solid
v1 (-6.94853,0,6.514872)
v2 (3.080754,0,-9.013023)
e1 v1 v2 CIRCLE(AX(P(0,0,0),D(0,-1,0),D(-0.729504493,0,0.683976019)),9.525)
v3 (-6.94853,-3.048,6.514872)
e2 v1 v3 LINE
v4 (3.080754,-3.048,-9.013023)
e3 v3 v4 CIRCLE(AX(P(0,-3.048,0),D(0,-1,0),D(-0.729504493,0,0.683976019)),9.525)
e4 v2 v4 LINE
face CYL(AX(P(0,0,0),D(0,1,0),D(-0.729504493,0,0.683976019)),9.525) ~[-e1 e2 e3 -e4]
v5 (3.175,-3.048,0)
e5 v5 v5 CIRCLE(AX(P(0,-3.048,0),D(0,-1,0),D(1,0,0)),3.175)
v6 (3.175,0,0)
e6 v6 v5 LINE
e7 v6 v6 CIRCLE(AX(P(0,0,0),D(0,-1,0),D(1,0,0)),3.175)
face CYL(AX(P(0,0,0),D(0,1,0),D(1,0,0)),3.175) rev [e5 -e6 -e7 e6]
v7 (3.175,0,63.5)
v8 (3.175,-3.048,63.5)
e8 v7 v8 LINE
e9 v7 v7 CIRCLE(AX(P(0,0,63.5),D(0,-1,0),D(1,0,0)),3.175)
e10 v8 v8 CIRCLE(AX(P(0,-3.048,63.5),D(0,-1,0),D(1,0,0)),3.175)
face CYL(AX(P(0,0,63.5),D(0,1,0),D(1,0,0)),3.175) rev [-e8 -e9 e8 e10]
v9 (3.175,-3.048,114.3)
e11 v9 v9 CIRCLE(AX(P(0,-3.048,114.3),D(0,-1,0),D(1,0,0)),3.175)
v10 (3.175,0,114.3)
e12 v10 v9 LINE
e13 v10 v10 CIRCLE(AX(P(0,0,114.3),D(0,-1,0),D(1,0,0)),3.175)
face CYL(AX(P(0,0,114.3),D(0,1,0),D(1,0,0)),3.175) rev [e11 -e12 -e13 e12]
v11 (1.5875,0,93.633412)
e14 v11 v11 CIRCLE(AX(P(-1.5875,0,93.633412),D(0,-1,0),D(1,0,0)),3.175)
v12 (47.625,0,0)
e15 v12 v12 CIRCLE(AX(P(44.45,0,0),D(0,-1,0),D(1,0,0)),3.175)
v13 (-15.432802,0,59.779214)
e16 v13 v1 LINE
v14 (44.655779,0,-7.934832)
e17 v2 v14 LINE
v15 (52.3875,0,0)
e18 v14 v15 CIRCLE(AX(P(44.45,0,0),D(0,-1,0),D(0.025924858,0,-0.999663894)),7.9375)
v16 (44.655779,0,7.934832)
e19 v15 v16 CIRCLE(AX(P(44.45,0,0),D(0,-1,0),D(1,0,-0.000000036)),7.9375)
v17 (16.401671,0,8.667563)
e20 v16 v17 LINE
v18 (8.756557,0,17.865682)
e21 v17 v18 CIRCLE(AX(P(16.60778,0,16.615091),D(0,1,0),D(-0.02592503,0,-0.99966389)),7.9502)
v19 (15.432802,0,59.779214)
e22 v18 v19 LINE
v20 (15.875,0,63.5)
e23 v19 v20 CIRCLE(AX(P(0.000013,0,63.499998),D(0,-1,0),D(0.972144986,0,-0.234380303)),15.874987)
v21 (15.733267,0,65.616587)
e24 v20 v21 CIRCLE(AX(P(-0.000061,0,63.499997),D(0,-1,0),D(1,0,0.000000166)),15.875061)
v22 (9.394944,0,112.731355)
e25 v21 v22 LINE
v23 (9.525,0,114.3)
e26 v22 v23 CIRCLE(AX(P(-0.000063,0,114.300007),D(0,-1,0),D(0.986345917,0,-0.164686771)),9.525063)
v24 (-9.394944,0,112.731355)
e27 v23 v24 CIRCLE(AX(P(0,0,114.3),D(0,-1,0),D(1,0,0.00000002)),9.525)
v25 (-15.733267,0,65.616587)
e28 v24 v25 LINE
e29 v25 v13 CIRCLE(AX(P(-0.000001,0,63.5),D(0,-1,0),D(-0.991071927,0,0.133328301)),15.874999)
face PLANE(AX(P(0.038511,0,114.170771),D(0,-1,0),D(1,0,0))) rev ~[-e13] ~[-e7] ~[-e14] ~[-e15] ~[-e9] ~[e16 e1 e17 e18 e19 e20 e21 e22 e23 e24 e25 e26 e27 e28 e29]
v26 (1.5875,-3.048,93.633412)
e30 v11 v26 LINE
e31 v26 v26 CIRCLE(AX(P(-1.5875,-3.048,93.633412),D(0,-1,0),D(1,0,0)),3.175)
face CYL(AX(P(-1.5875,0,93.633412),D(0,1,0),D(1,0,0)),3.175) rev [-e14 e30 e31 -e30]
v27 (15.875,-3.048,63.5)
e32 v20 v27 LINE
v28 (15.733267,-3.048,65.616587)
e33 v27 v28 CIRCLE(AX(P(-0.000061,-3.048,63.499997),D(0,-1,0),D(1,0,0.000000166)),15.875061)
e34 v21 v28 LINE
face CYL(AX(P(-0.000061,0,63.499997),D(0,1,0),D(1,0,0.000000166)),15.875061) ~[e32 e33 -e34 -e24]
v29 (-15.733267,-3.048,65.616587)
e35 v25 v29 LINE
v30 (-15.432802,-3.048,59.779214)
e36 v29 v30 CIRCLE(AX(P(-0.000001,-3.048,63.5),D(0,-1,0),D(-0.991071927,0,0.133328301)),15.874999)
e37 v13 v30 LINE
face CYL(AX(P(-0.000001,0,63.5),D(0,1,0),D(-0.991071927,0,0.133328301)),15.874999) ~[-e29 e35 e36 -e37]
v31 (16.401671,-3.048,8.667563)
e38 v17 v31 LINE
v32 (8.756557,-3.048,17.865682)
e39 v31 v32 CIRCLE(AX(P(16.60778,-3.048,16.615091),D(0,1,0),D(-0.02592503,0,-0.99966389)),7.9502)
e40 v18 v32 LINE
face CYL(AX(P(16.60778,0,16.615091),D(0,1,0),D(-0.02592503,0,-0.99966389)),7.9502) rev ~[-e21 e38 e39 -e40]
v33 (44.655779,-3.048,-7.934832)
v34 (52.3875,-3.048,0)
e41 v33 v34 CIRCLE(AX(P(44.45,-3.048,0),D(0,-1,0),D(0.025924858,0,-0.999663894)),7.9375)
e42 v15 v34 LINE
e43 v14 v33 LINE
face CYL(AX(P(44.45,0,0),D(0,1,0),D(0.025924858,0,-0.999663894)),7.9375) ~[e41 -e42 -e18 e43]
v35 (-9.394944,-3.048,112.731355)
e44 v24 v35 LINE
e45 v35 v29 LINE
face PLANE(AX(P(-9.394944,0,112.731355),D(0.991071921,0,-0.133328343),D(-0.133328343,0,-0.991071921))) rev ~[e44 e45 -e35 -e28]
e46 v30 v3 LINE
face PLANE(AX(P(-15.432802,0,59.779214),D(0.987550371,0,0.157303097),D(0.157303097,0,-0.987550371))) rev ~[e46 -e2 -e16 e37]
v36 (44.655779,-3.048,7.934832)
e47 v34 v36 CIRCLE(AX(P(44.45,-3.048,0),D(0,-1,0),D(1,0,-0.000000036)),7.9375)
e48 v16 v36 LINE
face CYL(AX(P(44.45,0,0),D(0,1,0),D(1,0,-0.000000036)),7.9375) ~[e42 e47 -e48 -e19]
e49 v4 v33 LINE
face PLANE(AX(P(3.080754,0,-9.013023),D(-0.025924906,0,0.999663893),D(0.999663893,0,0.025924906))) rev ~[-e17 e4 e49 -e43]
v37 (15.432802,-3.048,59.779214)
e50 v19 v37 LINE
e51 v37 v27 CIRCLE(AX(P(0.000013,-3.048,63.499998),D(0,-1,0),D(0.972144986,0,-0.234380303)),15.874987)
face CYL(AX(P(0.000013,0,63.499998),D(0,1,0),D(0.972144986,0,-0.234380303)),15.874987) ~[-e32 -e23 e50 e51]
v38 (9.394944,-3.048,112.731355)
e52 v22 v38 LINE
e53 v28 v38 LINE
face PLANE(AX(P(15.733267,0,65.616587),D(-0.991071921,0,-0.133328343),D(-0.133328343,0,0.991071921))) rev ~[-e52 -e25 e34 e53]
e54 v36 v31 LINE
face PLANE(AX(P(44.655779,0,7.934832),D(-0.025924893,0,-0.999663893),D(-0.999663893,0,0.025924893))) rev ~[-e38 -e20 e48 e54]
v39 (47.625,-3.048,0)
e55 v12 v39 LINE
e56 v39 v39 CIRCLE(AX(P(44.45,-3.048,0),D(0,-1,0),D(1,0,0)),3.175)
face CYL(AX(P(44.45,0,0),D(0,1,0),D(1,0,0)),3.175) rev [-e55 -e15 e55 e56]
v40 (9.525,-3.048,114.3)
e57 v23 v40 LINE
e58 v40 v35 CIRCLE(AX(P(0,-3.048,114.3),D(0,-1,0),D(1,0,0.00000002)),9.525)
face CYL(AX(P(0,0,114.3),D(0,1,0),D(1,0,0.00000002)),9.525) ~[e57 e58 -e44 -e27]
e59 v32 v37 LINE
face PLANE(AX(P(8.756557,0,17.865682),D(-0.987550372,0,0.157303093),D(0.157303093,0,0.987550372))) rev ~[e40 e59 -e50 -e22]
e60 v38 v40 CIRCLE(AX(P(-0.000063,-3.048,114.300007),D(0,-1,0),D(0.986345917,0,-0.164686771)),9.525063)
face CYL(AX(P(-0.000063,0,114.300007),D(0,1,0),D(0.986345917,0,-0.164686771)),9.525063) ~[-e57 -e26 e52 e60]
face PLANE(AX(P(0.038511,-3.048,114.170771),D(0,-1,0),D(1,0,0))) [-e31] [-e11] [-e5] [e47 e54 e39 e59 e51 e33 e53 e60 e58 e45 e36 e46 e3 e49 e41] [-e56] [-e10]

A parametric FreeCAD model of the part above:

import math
import FreeCAD as App
import Part
import Sketcher
from FreeCAD import Vector
Q = App.Units.Quantity

doc = App.newDocument("Part")
params = doc.addObject("Spreadsheet::Sheet", "Params")
for row, (alias, value) in enumerate([
    ("sketch1_diameter", "0.25 in"),
    ("sketch1_diameter2", "0.25 in"),
    ("sketch1_diameter3", "0.25 in"),
    ("sketch1_diameter4", "0.25 in"),
    ("sketch1_diameter5", "0.25 in"),
    ("pad1_length", "0.12 in"),
], start=1):
    params.set(f"A{row}", alias)
    params.set(f"B{row}", "=" + value)
    params.setAlias(f"B{row}", alias)

body = doc.addObject("PartDesign::Body", "Body")

# Sketch on XZ plane
sketch1 = body.newObject("Sketcher::SketchObject", "Sketch")
sketch1.AttachmentSupport = (doc.getObject("XZ_Plane"), [""])
sketch1.MapMode = "FlatFace"
sketch1.addGeometry(Part.ArcOfCircle(Part.Circle(Vector(-0.000063, 114.300007, 0), Vector(0, 0, 1), 9.525063), math.radians(-9.479039), math.radians(-0.000041)), False)
sketch1.addGeometry(Part.ArcOfCircle(Part.Circle(Vector(0, 114.3, 0), Vector(0, 0, 1), 9.525), math.radians(0.000001), math.radians(189.479059)), False)
sketch1.addGeometry(Part.LineSegment(Vector(-9.394944, 112.731355, 0), Vector(-15.733267, 65.616587, 0)), False)
sketch1.addGeometry(Part.ArcOfCircle(Part.Circle(Vector(-0.000001, 63.5, 0), Vector(0, 0, 1), 15.874999), math.radians(172.338035), math.radians(193.555094)), False)
sketch1.addGeometry(Part.LineSegment(Vector(-15.432802, 59.779214, 0), Vector(-6.94853, 6.514872, 0)), False)
sketch1.addGeometry(Part.ArcOfCircle(Part.Circle(Vector(0, 0, 0), Vector(0, 0, 1), 9.525), math.radians(136.84487), math.radians(288.87101)), False)
sketch1.addGeometry(Part.LineSegment(Vector(3.080754, -9.013023, 0), Vector(44.655779, -7.934832, 0)), False)
sketch1.addGeometry(Part.ArcOfCircle(Part.Circle(Vector(44.45, 0, 0), Vector(0, 0, 1), 7.9375), math.radians(-88.514449), math.radians(0.000002)), False)
sketch1.addGeometry(Part.ArcOfCircle(Part.Circle(Vector(44.45, 0, 0), Vector(0, 0, 1), 7.9375), math.radians(-0.000002), math.radians(88.514449)), False)
sketch1.addGeometry(Part.LineSegment(Vector(44.655779, 7.934832, 0), Vector(16.401671, 8.667563, 0)), False)
sketch1.addGeometry(Part.ArcOfCircle(Part.Circle(Vector(16.60778, 16.615091, 0), Vector(0, 0, 1), 7.9502), math.radians(170.949608), math.radians(268.514439)), False)
sketch1.addGeometry(Part.LineSegment(Vector(8.756557, 17.865682, 0), Vector(15.432802, 59.779214, 0)), False)
sketch1.addGeometry(Part.ArcOfCircle(Part.Circle(Vector(0.000013, 63.499998, 0), Vector(0, 0, 1), 15.874987), math.radians(-13.555097), math.radians(0.000006)), False)
sketch1.addGeometry(Part.ArcOfCircle(Part.Circle(Vector(-0.000061, 63.499997, 0), Vector(0, 0, 1), 15.875061), math.radians(0.00001), math.radians(7.661946)), False)
sketch1.addGeometry(Part.LineSegment(Vector(15.733267, 65.616587, 0), Vector(9.394944, 112.731355, 0)), False)
sketch1.addGeometry(Part.Circle(Vector(0, 0, 0), Vector(0, 0, 1), 3.175), False)
sketch1.addGeometry(Part.Circle(Vector(44.45, 0, 0), Vector(0, 0, 1), 3.175), False)
sketch1.addGeometry(Part.Circle(Vector(0, 63.5, 0), Vector(0, 0, 1), 3.175), False)
sketch1.addGeometry(Part.Circle(Vector(-1.5875, 93.633412, 0), Vector(0, 0, 1), 3.175), False)
sketch1.addGeometry(Part.Circle(Vector(0, 114.3, 0), Vector(0, 0, 1), 3.175), False)
sketch1.addConstraint(Sketcher.Constraint("Coincident", 0, 2, 1, 1))
sketch1.addConstraint(Sketcher.Constraint("Coincident", 1, 2, 2, 1))
sketch1.addConstraint(Sketcher.Constraint("Coincident", 2, 2, 3, 1))
sketch1.addConstraint(Sketcher.Constraint("Coincident", 3, 2, 4, 1))
sketch1.addConstraint(Sketcher.Constraint("Coincident", 4, 2, 5, 1))
sketch1.addConstraint(Sketcher.Constraint("Coincident", 5, 2, 6, 1))
sketch1.addConstraint(Sketcher.Constraint("Coincident", 6, 2, 7, 1))
sketch1.addConstraint(Sketcher.Constraint("Coincident", 7, 2, 8, 1))
sketch1.addConstraint(Sketcher.Constraint("Coincident", 8, 2, 9, 1))
sketch1.addConstraint(Sketcher.Constraint("Coincident", 9, 2, 10, 2))
sketch1.addConstraint(Sketcher.Constraint("Coincident", 10, 1, 11, 1))
sketch1.addConstraint(Sketcher.Constraint("Coincident", 11, 2, 12, 1))
sketch1.addConstraint(Sketcher.Constraint("Coincident", 12, 2, 13, 1))
sketch1.addConstraint(Sketcher.Constraint("Coincident", 13, 2, 14, 1))
sketch1.addConstraint(Sketcher.Constraint("Coincident", 14, 2, 0, 1))
sketch1.addConstraint(Sketcher.Constraint("Coincident", 5, 3, -1, 1))
sketch1.addConstraint(Sketcher.Constraint("Coincident", 15, 3, -1, 1))
sketch1.addConstraint(Sketcher.Constraint("Coincident", 8, 3, 7, 3))
sketch1.addConstraint(Sketcher.Constraint("Coincident", 16, 3, 7, 3))
sketch1.addConstraint(Sketcher.Constraint("Coincident", 17, 3, 3, 3))
sketch1.addConstraint(Sketcher.Constraint("Coincident", 19, 3, 1, 3))
sketch1.addConstraint(Sketcher.Constraint("PointOnObject", 1, 3, -2))
sketch1.addConstraint(Sketcher.Constraint("PointOnObject", 3, 3, -2))
sketch1.addConstraint(Sketcher.Constraint("PointOnObject", 7, 3, -1))
sketch1.addConstraint(Sketcher.Constraint("PointOnObject", 7, 2, -1))
sketch1.addConstraint(Sketcher.Constraint("Diameter", 15, Q("0.25 in")))
sketch1.addConstraint(Sketcher.Constraint("Diameter", 16, Q("0.25 in")))
sketch1.addConstraint(Sketcher.Constraint("Diameter", 17, Q("0.25 in")))
sketch1.addConstraint(Sketcher.Constraint("Diameter", 18, Q("0.25 in")))
sketch1.addConstraint(Sketcher.Constraint("Diameter", 19, Q("0.25 in")))
sketch1.addConstraint(Sketcher.Constraint("Radius", 1, Q("0.375 in")))
sketch1.addConstraint(Sketcher.Constraint("Radius", 3, Q("0.625 in")))
sketch1.addConstraint(Sketcher.Constraint("Radius", 5, Q("0.375 in")))
sketch1.addConstraint(Sketcher.Constraint("Radius", 7, Q("0.3125 in")))
sketch1.addConstraint(Sketcher.Constraint("Radius", 10, Q("0.313 in")))
sketch1.addConstraint(Sketcher.Constraint("DistanceY", 3, 3, 1, 3, Q("2 in")))
sketch1.addConstraint(Sketcher.Constraint("DistanceY", 12, 3, 1, 3, Q("2.0000001 in")))
sketch1.addConstraint(Sketcher.Constraint("DistanceY", 13, 3, 1, 3, Q("2.0000001 in")))
sketch1.addConstraint(Sketcher.Constraint("DistanceY", 12, 3, 0, 2, Q("2.0000001 in")))
sketch1.addConstraint(Sketcher.Constraint("DistanceY", -1, 1, 1, 3, Q("4.5 in")))
sketch1.addConstraint(Sketcher.Constraint("DistanceY", -1, 1, 12, 2, Q("2.5 in")))
sketch1.addConstraint(Sketcher.Constraint("DistanceX", -1, 1, 7, 3, Q("1.75 in")))
sketch1.addConstraint(Sketcher.Constraint("DistanceX", 18, 3, -1, 1, Q("0.0625 in")))
sketch1.addConstraint(Sketcher.Constraint("DistanceX", -1, 1, 12, 2, Q("0.625 in")))
sketch1.addConstraint(Sketcher.Constraint("Radius", 13, 15.875061))
sketch1.addConstraint(Sketcher.Constraint("Radius", 0, 9.525063))
sketch1.addConstraint(Sketcher.Constraint("Radius", 12, 15.874987))
sketch1.addConstraint(Sketcher.Constraint("Distance", 2, 47.539202))
sketch1.addConstraint(Sketcher.Constraint("Distance", 14, 47.539202))
sketch1.addConstraint(Sketcher.Constraint("DistanceX", 3, 2, 3, 3, 15.432801))
sketch1.addConstraint(Sketcher.Constraint("DistanceX", 10, 3, 6, 2, 28.047999))
sketch1.addConstraint(Sketcher.Constraint("DistanceX", 4, 2, 9, 2, 23.350201))
sketch1.addConstraint(Sketcher.Constraint("Distance", 11, 42.441918))
sketch1.addConstraint(Sketcher.Constraint("DistanceX", -1, 1, 10, 3, 16.60778))
sketch1.addConstraint(Sketcher.Constraint("DistanceY", -1, 1, 10, 3, 16.615091))
sketch1.addConstraint(Sketcher.Constraint("DistanceX", 4, 2, -1, 1, 6.94853))
sketch1.addConstraint(Sketcher.Constraint("DistanceX", -1, 1, 8, 2, 44.655779))
sketch1.addConstraint(Sketcher.Constraint("DistanceY", -1, 1, 10, 1, 17.865682))
sketch1.addConstraint(Sketcher.Constraint("DistanceY", 12, 3, 0, 3, 50.800008))
sketch1.addConstraint(Sketcher.Constraint("DistanceY", 3, 3, 18, 3, 30.133412))
sketch1.addConstraint(Sketcher.Constraint("DistanceX", 1, 2, 0, 3, 9.394881))
sketch1.addConstraint(Sketcher.Constraint("DistanceY", 5, 2, 6, 2, 1.078191))
sketch1.addConstraint(Sketcher.Constraint("DistanceY", 12, 3, 13, 2, 2.116589))
sketch1.setExpression("Constraints[25]", "Params.sketch1_diameter")
sketch1.setExpression("Constraints[26]", "Params.sketch1_diameter2")
sketch1.setExpression("Constraints[27]", "Params.sketch1_diameter3")
sketch1.setExpression("Constraints[28]", "Params.sketch1_diameter4")
sketch1.setExpression("Constraints[29]", "Params.sketch1_diameter5")
pad1 = body.newObject("PartDesign::Pad", "Pad")
pad1.Profile = sketch1
pad1.setExpression("Length", "Params.pad1_length")

doc.recompute()
